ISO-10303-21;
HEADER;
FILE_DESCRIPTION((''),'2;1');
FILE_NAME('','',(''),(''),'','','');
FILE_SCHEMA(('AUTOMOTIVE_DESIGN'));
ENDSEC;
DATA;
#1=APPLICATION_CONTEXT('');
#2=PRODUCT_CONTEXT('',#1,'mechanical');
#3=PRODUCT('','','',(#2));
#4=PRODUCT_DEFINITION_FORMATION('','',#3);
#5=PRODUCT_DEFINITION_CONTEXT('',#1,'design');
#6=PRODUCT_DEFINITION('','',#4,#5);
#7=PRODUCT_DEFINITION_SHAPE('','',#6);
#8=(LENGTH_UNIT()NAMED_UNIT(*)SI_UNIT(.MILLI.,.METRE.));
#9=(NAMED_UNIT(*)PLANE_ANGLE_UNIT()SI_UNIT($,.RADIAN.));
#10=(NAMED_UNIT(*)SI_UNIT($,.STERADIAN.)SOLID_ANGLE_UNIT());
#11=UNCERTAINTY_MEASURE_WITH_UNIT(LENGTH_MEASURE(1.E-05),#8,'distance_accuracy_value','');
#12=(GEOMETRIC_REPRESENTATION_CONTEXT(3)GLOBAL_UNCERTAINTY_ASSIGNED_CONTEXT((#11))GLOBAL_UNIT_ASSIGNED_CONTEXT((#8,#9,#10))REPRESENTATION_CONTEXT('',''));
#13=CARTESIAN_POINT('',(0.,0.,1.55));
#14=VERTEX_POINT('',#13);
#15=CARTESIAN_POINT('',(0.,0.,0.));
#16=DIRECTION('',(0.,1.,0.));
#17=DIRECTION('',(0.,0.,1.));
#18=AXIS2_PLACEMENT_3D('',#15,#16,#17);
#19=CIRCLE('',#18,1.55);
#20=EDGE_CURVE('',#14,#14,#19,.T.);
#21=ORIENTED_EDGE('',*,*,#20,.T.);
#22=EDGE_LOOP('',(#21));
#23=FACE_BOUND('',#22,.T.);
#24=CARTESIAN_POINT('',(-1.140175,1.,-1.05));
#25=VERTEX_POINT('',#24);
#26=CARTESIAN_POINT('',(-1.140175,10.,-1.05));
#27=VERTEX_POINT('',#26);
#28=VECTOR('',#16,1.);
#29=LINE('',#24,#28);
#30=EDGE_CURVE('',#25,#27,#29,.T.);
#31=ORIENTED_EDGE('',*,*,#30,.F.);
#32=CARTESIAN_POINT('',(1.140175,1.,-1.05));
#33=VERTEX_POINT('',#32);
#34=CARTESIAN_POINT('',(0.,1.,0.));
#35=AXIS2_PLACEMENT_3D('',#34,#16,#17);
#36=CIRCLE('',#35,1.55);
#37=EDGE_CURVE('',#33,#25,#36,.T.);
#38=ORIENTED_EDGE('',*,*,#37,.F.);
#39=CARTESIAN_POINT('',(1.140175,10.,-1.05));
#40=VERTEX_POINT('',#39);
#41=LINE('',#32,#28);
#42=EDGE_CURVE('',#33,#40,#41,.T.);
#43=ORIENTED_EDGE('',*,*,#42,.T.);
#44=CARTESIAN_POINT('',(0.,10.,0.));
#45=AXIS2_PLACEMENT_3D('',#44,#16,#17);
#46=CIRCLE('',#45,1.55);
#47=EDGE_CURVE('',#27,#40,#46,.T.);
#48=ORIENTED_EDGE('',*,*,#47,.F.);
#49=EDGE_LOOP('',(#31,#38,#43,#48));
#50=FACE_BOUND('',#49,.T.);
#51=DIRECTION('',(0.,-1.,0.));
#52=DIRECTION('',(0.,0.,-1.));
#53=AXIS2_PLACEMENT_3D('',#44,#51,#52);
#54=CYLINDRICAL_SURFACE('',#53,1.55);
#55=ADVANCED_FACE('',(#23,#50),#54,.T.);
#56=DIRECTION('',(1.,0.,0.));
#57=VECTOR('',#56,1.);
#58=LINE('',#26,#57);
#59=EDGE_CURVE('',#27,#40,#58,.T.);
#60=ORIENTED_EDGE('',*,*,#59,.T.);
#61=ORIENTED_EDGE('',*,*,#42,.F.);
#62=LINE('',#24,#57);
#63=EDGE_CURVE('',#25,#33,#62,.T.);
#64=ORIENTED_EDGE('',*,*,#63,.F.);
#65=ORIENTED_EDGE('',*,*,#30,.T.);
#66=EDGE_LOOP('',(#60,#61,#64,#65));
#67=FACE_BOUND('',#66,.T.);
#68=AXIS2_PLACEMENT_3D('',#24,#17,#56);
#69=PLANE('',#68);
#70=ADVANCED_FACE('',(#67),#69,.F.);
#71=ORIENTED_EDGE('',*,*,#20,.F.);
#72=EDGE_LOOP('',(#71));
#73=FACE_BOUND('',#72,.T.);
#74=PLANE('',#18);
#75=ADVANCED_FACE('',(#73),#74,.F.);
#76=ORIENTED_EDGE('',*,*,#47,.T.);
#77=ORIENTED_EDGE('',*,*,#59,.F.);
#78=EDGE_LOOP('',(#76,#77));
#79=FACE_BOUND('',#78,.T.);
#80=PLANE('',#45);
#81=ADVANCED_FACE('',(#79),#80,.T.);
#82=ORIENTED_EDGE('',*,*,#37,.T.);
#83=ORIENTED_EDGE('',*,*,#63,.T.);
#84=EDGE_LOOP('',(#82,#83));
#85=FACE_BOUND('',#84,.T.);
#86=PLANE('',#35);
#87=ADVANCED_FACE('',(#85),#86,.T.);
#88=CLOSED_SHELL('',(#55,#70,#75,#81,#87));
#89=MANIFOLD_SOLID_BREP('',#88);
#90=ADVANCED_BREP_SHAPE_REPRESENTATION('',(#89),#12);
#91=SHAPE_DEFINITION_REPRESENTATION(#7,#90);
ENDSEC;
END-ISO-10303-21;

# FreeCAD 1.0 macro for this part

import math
import FreeCAD as App
import Part
import Sketcher
from FreeCAD import Vector

doc = App.newDocument("Part")
body = doc.addObject("PartDesign::Body", "Body")

# Sketch on XZ plane
sketch1 = body.newObject("Sketcher::SketchObject", "Sketch")
sketch1.AttachmentSupport = (doc.getObject("XZ_Plane"), [""])
sketch1.MapMode = "FlatFace"
sketch1.addGeometry(Part.Circle(Vector(0, 0, 0), Vector(0, 0, 1), 1.55), False)
sketch1.addConstraint([
    Sketcher.Constraint("Coincident", 0, 3, -1, 1),
    Sketcher.Constraint("Diameter", 0, 3.1),
])
pad1 = body.newObject("PartDesign::Pad", "Pad")
pad1.Profile = sketch1
pad1.Length = 10
pad1.Reversed = True

# Sketch on XZ plane
sketch2 = body.newObject("Sketcher::SketchObject", "Sketch001")
sketch2.AttachmentSupport = (doc.getObject("XZ_Plane"), [""])
sketch2.MapMode = "FlatFace"
sketch2.AttachmentOffset = App.Placement(Vector(0, 0, -1), App.Rotation())
sketch2.addGeometry([
    Part.LineSegment(Vector(-1.140175, -1.05, 0), Vector(1.140175, -1.05, 0)),
    Part.ArcOfCircle(Part.Circle(Vector(0, 0, 0), Vector(0, 0, 1), 1.55), math.radians(-137.35769), math.radians(-42.64231)),
], False)
sketch2.addConstraint([
    Sketcher.Constraint("Coincident", 0, 1, 1, 1),
    Sketcher.Constraint("Coincident", 1, 2, 0, 2),
    Sketcher.Constraint("Horizontal", 0),
    Sketcher.Constraint("Coincident", 1, 3, -1, 1),
    Sketcher.Constraint("Radius", 1, 1.55),
    Sketcher.Constraint("DistanceY", 0, 1, -1, 1, 1.05),
])
pocket1 = body.newObject("PartDesign::Pocket", "Pocket")
pocket1.Profile = sketch2
pocket1.Length = 9

doc.recompute()
